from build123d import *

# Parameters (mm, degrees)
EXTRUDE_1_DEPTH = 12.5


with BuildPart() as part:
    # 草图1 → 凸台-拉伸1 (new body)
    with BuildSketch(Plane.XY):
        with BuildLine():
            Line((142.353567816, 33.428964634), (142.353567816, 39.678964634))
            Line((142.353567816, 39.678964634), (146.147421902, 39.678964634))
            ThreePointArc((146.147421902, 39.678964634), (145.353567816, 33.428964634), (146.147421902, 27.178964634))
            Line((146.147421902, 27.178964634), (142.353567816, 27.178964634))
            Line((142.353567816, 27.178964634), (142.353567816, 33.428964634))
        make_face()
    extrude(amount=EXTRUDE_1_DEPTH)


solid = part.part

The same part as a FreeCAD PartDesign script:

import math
import FreeCAD as App
import Part
import Sketcher

doc = App.newDocument("Part")
body = doc.addObject("PartDesign::Body", "Body")

# Sketch on XY plane
sketch1 = doc.addObject("Sketcher::SketchObject", "Sketch")
body.addObject(sketch1)
sketch1.AttachmentSupport = (doc.XY_Plane, [""])
sketch1.MapMode = "FlatFace"
sketch1.addGeometry(Part.LineSegment(App.Vector(146.1, 39.7, 0), App.Vector(142.4, 39.7, 0)), False)
sketch1.addGeometry(Part.LineSegment(App.Vector(142.4, 39.7, 0), App.Vector(142.4, 27.2, 0)), False)
sketch1.addGeometry(Part.LineSegment(App.Vector(142.4, 27.2, 0), App.Vector(146.1, 27.2, 0)), False)
sketch1.addGeometry(Part.ArcOfCircle(Part.Circle(App.Vector(170.4, 33.4, 0), App.Vector(0, 0, 1), 25), math.radians(166), math.radians(194)), False)
sketch1.addConstraint(Sketcher.Constraint("Coincident", 0, 2, 1, 1))
sketch1.addConstraint(Sketcher.Constraint("Coincident", 1, 2, 2, 1))
sketch1.addConstraint(Sketcher.Constraint("Coincident", 2, 2, 3, 2))
sketch1.addConstraint(Sketcher.Constraint("Coincident", 3, 1, 0, 1))
sketch1.addConstraint(Sketcher.Constraint("Horizontal", 0))
sketch1.addConstraint(Sketcher.Constraint("Vertical", 1))
sketch1.addConstraint(Sketcher.Constraint("Horizontal", 2))
sketch1.addConstraint(Sketcher.Constraint("Vertical", 2, 2, 3, 1))
sketch1.addConstraint(Sketcher.Constraint("Radius", 3, 25.0))
sketch1.addConstraint(Sketcher.Constraint("DistanceY", 1, 2, 1, 1, 12.5))
sketch1.addConstraint(Sketcher.Constraint("DistanceX", 0, 2, 3, 3, 28.0))
sketch1.addConstraint(Sketcher.Constraint("DistanceX", -1, 1, 2, 2, 146.147422))
sketch1.addConstraint(Sketcher.Constraint("DistanceY", -1, 1, 3, 3, 33.428965))
pad1 = doc.addObject("PartDesign::Pad", "Pad")
body.addObject(pad1)
pad1.Profile = sketch1
pad1.Length = 12.5

doc.recompute()
